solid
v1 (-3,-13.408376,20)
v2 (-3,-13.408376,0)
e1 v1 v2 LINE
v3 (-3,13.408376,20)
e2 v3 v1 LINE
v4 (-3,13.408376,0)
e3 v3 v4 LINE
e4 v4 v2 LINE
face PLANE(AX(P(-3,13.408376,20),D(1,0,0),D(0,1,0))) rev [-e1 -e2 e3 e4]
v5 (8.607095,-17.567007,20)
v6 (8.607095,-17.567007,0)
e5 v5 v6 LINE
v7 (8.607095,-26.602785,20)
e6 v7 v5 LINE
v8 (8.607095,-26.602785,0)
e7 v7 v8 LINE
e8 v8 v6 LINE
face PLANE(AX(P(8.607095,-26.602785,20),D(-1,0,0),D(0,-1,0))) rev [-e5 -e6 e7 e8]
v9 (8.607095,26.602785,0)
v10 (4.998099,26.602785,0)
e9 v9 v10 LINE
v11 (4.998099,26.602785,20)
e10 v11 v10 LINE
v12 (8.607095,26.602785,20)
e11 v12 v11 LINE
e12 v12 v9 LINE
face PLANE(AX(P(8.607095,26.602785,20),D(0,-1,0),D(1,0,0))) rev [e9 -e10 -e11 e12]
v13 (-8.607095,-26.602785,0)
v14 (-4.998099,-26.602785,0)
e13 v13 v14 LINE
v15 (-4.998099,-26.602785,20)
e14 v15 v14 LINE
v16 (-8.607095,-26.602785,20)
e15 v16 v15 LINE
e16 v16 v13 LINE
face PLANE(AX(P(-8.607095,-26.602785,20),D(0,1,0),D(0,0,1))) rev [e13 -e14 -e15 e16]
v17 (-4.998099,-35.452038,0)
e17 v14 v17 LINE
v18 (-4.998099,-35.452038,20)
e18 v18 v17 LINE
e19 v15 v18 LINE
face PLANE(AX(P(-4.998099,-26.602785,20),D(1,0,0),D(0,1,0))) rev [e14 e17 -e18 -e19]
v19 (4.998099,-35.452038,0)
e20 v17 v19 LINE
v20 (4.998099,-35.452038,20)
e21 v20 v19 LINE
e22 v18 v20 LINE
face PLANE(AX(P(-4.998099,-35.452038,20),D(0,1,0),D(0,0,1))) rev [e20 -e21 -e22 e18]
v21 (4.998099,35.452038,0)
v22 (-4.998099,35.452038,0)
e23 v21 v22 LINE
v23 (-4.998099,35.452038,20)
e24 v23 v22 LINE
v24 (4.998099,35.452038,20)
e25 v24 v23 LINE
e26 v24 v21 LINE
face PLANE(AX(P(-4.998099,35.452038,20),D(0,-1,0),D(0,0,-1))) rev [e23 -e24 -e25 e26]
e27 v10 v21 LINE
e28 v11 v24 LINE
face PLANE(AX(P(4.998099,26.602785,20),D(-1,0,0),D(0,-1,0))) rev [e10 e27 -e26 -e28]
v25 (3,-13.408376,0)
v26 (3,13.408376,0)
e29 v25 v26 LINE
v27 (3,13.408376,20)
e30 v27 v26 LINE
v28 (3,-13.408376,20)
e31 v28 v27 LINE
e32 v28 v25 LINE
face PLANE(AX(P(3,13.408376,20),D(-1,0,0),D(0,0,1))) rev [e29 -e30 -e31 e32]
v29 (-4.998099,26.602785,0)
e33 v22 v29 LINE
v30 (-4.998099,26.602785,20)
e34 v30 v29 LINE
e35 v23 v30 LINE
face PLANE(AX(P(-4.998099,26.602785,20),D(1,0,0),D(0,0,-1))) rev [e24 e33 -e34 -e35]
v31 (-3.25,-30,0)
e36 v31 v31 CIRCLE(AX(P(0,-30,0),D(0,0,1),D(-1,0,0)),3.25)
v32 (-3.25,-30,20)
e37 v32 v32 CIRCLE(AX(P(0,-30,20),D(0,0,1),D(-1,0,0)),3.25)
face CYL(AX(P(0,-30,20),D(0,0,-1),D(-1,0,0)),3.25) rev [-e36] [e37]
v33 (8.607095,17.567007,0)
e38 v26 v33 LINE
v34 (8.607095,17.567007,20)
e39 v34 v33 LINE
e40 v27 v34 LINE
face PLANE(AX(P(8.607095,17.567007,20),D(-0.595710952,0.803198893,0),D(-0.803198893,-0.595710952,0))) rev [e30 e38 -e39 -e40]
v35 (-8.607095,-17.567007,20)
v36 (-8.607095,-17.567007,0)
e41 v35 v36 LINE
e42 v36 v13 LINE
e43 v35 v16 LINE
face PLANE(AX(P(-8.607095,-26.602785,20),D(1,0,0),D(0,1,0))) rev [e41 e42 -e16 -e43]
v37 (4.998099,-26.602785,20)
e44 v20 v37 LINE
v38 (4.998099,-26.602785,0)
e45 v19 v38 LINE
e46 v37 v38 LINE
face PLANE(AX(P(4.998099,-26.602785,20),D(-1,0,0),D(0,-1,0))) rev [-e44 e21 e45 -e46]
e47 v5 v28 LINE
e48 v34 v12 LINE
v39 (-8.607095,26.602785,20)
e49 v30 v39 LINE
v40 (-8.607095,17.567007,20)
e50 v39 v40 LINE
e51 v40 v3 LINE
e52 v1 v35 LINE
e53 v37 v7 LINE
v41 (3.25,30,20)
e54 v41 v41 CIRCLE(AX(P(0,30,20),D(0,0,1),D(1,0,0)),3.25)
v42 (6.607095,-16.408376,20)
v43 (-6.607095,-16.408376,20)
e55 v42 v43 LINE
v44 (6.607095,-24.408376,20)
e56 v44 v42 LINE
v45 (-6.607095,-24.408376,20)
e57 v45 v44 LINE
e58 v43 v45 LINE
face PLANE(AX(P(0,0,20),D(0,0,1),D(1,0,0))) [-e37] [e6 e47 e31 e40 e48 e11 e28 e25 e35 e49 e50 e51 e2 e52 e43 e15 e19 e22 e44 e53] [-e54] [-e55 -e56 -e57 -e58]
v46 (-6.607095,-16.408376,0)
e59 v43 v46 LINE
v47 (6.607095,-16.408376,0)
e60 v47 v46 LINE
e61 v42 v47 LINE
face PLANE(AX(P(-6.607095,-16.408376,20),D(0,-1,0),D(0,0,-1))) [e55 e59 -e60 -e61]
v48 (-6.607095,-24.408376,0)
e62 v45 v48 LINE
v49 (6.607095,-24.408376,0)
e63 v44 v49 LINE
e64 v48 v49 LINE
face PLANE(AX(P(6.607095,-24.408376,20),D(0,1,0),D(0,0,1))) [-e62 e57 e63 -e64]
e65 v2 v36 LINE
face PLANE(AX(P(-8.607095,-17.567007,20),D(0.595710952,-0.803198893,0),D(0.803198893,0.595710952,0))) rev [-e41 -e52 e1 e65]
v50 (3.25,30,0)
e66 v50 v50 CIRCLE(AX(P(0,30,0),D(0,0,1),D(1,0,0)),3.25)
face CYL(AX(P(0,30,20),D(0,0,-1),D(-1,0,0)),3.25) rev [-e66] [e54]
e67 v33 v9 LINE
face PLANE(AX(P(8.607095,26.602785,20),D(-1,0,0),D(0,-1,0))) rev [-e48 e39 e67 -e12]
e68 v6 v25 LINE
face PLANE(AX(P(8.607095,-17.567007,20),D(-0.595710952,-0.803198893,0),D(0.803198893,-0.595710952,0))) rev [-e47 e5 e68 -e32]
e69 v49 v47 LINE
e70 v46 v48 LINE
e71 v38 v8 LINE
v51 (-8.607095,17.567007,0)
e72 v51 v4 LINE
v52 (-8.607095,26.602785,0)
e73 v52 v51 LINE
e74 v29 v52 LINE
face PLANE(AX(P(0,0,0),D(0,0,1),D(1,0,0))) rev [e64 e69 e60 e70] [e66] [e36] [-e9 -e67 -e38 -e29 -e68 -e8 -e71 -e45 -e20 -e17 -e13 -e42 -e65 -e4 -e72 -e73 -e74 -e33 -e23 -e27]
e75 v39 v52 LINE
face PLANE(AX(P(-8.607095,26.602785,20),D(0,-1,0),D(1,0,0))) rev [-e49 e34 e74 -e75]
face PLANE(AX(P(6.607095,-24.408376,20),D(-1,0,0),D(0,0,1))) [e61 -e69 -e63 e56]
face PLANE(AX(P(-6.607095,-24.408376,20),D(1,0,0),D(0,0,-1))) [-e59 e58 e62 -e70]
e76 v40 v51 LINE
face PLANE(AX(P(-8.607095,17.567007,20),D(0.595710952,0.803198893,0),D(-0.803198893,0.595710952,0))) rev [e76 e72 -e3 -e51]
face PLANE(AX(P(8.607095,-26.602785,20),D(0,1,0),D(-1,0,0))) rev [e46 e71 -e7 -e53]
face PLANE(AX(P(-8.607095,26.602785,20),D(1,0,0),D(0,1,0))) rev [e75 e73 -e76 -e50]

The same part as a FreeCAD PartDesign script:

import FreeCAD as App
import Part
import Sketcher

V = App.Vector


def add_polygon(sketch, points):
    """Adds a closed chain of lines whose ends are joined by coincident constraints."""
    first, n = sketch.GeometryCount, len(points)
    for a, b in zip(points, points[1:] + points[:1]):
        sketch.addGeometry(Part.LineSegment(App.Vector(*a, 0), App.Vector(*b, 0)), False)
    for i in range(n):
        sketch.addConstraint(Sketcher.Constraint("Coincident", first + i, 2, first + (i + 1) % n, 1))

doc = App.newDocument("Part")
body = doc.addObject("PartDesign::Body", "Body")

sketch1 = doc.addObject("Sketcher::SketchObject", "Sketch")
body.addObject(sketch1)
sketch1.AttachmentSupport = (doc.XY_Plane, [""])
sketch1.MapMode = "FlatFace"
add_polygon(sketch1, [(-5, 26.6), (-8.6, 26.6), (-8.6, 17.6), (-3, 13.4), (-3, -13.4), (-8.6, -17.6), (-8.6, -26.6), (-5, -26.6), (-5, -35.5), (5, -35.5), (5, -26.6), (8.6, -26.6), (8.6, -17.6), (3, -13.4), (3, 13.4), (8.6, 17.6), (8.6, 26.6), (5, 26.6), (5, 35.5), (-5, 35.5)])
sketch1.addGeometry(Part.Circle(V(0, -30, 0), V(0, 0, 1), 3.2), False)
add_polygon(sketch1, [(-6.6, -24.4), (-6.6, -16.4), (6.6, -16.4), (6.6, -24.4)])
sketch1.addGeometry(Part.Circle(V(0, 30, 0), V(0, 0, 1), 3.2), False)
sketch1.addConstraint([
    Sketcher.Constraint("Horizontal", 0),
    Sketcher.Constraint("Vertical", 1),
    Sketcher.Constraint("Vertical", 3),
    Sketcher.Constraint("Vertical", 5),
    Sketcher.Constraint("Horizontal", 6),
    Sketcher.Constraint("Vertical", 7),
    Sketcher.Constraint("Horizontal", 8),
    Sketcher.Constraint("Vertical", 9),
    Sketcher.Constraint("Horizontal", 10),
    Sketcher.Constraint("Vertical", 11),
    Sketcher.Constraint("Vertical", 13),
    Sketcher.Constraint("Vertical", 15),
    Sketcher.Constraint("Horizontal", 16),
    Sketcher.Constraint("Vertical", 17),
    Sketcher.Constraint("Horizontal", 18),
    Sketcher.Constraint("Vertical", 19),
    Sketcher.Constraint("Vertical", 21),
    Sketcher.Constraint("Horizontal", 22),
    Sketcher.Constraint("Vertical", 23),
    Sketcher.Constraint("Horizontal", 24),
    Sketcher.Constraint("Equal", 20, 25),
    Sketcher.Constraint("Symmetric", 20, 3, 25, 3, -1, 1),
    Sketcher.Constraint("Symmetric", 0, 2, 10, 2, -1, 1),
    Sketcher.Constraint("Symmetric", 2, 2, 12, 2, -1, 1),
    Sketcher.Constraint("Symmetric", 4, 2, 14, 2, -1, 1),
    Sketcher.Constraint("Symmetric", 6, 2, 16, 2, -1, 1),
    Sketcher.Constraint("Symmetric", 8, 2, 18, 2, -1, 1),
    Sketcher.Constraint("Symmetric", 6, 2, 9, 2, -2),
    Sketcher.Constraint("Symmetric", 4, 2, 11, 2, -2),
    Sketcher.Constraint("PointOnObject", 20, 3, -2),
    Sketcher.Constraint("Parallel", 2, 12),
    Sketcher.Constraint("Parallel", 4, 14),
    Sketcher.Constraint("Horizontal", 3, 2, 12, 2),
    Sketcher.Constraint("Diameter", 20, 6.5),
    Sketcher.Constraint("DistanceY", 21, 1, 21, 2, 8.0),
    Sketcher.Constraint("DistanceY", 20, 3, -1, 1, 30.0),
    Sketcher.Constraint("DistanceX", 2, 2, -1, 1, 3.0),
    Sketcher.Constraint("DistanceX", 4, 2, 21, 2, 2.0),
    Sketcher.Constraint("DistanceY", 21, 2, 3, 2, 3.0),
    Sketcher.Constraint("DistanceX", 22, 2, 11, 2, 2.0),
    Sketcher.Constraint("DistanceX", 22, 1, 22, 2, 13.214189),
    Sketcher.Constraint("DistanceX", 6, 2, -1, 1, 4.998099),
    Sketcher.Constraint("DistanceY", 1, 2, 1, 1, 9.035778),
    Sketcher.Constraint("DistanceY", 3, 2, 3, 1, 26.816753),
    Sketcher.Constraint("DistanceY", 7, 2, 7, 1, 8.849253),
    Sketcher.Constraint("DistanceY", 2, 2, 1, 2, 4.158631),
])
pad1 = doc.addObject("PartDesign::Pad", "Pad")
body.addObject(pad1)
pad1.Profile = sketch1
pad1.Length = 20

doc.recompute()
